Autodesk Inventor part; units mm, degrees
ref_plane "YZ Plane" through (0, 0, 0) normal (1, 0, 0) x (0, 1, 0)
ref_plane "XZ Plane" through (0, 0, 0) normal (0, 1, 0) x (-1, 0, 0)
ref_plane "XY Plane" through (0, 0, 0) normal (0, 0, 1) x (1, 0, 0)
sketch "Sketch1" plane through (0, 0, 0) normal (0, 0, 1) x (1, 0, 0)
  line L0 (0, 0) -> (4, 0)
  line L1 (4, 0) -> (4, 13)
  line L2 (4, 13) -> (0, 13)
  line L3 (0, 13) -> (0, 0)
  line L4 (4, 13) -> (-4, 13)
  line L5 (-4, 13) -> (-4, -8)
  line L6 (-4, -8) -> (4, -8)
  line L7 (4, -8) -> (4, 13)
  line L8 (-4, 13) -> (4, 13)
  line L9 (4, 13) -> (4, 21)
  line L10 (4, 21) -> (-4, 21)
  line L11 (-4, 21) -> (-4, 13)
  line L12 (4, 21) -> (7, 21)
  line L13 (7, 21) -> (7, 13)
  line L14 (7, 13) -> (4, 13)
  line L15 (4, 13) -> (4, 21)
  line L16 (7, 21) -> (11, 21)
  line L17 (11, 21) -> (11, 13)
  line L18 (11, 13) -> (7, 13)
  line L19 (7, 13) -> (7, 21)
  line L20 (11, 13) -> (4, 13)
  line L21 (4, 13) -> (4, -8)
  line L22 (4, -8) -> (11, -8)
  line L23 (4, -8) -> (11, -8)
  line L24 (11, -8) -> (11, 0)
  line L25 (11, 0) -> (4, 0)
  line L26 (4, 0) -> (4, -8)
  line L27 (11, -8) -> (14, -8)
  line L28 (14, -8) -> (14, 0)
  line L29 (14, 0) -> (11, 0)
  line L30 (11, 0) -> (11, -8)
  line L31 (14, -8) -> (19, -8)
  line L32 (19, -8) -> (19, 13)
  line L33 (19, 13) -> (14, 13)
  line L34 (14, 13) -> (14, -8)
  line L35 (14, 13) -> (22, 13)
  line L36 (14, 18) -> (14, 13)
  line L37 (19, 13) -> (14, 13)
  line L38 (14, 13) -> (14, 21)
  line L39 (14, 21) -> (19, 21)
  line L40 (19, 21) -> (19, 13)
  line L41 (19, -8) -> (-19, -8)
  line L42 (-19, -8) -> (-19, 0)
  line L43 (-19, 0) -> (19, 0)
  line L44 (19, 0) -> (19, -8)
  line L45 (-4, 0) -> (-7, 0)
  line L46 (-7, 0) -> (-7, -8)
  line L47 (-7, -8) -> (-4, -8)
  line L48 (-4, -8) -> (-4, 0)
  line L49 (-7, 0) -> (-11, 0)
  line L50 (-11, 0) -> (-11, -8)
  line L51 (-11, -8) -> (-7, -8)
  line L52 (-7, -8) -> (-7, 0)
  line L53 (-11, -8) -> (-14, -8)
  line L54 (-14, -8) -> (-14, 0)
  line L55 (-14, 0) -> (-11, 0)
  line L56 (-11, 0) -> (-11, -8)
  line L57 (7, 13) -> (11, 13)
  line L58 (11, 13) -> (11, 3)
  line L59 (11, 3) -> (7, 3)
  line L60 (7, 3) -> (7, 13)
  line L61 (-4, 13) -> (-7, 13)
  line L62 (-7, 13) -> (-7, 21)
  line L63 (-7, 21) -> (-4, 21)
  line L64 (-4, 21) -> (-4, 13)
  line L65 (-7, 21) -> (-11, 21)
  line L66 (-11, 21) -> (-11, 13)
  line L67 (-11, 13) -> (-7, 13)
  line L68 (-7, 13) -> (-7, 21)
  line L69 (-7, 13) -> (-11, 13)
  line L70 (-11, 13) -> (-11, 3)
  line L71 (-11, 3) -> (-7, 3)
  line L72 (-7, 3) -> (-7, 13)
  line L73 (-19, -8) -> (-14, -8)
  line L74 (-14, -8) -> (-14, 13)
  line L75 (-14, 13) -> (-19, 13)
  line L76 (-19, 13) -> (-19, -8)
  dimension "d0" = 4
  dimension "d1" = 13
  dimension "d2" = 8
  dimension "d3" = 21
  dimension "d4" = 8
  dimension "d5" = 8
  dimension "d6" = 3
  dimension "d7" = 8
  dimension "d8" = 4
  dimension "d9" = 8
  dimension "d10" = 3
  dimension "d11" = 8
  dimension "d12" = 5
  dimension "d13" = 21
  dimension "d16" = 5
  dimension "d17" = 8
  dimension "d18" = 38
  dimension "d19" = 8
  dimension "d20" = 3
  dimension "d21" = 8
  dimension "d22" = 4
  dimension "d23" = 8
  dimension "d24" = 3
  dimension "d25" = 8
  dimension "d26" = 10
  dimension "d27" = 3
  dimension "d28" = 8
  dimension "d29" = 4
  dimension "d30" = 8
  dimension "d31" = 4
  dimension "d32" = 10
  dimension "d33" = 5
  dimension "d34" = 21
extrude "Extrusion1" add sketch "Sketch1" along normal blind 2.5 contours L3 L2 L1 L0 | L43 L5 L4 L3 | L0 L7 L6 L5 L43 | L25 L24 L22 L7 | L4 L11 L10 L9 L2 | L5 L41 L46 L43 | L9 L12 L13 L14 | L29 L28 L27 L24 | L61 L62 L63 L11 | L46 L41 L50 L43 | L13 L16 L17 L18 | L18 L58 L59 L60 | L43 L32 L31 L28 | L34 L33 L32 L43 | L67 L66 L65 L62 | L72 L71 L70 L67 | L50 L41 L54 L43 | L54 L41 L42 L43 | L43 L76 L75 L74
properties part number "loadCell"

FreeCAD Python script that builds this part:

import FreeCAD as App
import Part
import Sketcher


def add_polygon(sketch, points):
    """Adds a closed chain of lines whose ends are joined by coincident constraints."""
    first, n = sketch.GeometryCount, len(points)
    for a, b in zip(points, points[1:] + points[:1]):
        sketch.addGeometry(Part.LineSegment(App.Vector(*a, 0), App.Vector(*b, 0)), False)
    for i in range(n):
        sketch.addConstraint(Sketcher.Constraint("Coincident", first + i, 2, first + (i + 1) % n, 1))

doc = App.newDocument("Part")
body = doc.addObject("PartDesign::Body", "Body")

sketch1 = body.newObject("Sketcher::SketchObject", "Sketch")
sketch1.AttachmentSupport = (doc.getObject("XY_Plane"), [""])
sketch1.MapMode = "FlatFace"
add_polygon(sketch1, [(4, 0), (4, 13), (7, 13), (7, 3), (11, 3), (11, 21), (-11, 21), (-11, 3), (-7, 3), (-7, 13), (-4, 13), (-4, 0), (-14, 0), (-14, 13), (-19, 13), (-19, -8), (19, -8), (19, 13), (14, 13), (14, 0)])
sketch1.addConstraint(Sketcher.Constraint("Vertical", 0))
sketch1.addConstraint(Sketcher.Constraint("Horizontal", 1))
sketch1.addConstraint(Sketcher.Constraint("Vertical", 2))
sketch1.addConstraint(Sketcher.Constraint("Horizontal", 3))
sketch1.addConstraint(Sketcher.Constraint("Vertical", 4))
sketch1.addConstraint(Sketcher.Constraint("Horizontal", 5))
sketch1.addConstraint(Sketcher.Constraint("Vertical", 6))
sketch1.addConstraint(Sketcher.Constraint("Horizontal", 7))
sketch1.addConstraint(Sketcher.Constraint("Vertical", 8))
sketch1.addConstraint(Sketcher.Constraint("Horizontal", 9))
sketch1.addConstraint(Sketcher.Constraint("Vertical", 10))
sketch1.addConstraint(Sketcher.Constraint("Horizontal", 11))
sketch1.addConstraint(Sketcher.Constraint("Vertical", 12))
sketch1.addConstraint(Sketcher.Constraint("Horizontal", 13))
sketch1.addConstraint(Sketcher.Constraint("Vertical", 14))
sketch1.addConstraint(Sketcher.Constraint("Horizontal", 15))
sketch1.addConstraint(Sketcher.Constraint("Vertical", 16))
sketch1.addConstraint(Sketcher.Constraint("Horizontal", 17))
sketch1.addConstraint(Sketcher.Constraint("Vertical", 18))
sketch1.addConstraint(Sketcher.Constraint("Horizontal", 19))
sketch1.addConstraint(Sketcher.Constraint("Symmetric", 11, 2, 18, 2, -1, 1))
sketch1.addConstraint(Sketcher.Constraint("Symmetric", 3, 2, 6, 2, -2))
sketch1.addConstraint(Sketcher.Constraint("Symmetric", 1, 2, 8, 2, -2))
sketch1.addConstraint(Sketcher.Constraint("Symmetric", 13, 2, 16, 2, -2))
sketch1.addConstraint(Sketcher.Constraint("Symmetric", 10, 2, 19, 2, -2))
sketch1.addConstraint(Sketcher.Constraint("Horizontal", 9, 2, 12, 2))
sketch1.addConstraint(Sketcher.Constraint("Equal", 19, 2))
sketch1.addConstraint(Sketcher.Constraint("DistanceX", 1, 1, 1, 2, 3.0))
sketch1.addConstraint(Sketcher.Constraint("DistanceX", 3, 1, 3, 2, 4.0))
sketch1.addConstraint(Sketcher.Constraint("DistanceX", 11, 2, 11, 1, 10.0))
sketch1.addConstraint(Sketcher.Constraint("DistanceX", 13, 2, 13, 1, 5.0))
sketch1.addConstraint(Sketcher.Constraint("DistanceX", 15, 1, 15, 2, 38.0))
sketch1.addConstraint(Sketcher.Constraint("DistanceY", 0, 1, 0, 2, 13.0))
sketch1.addConstraint(Sketcher.Constraint("DistanceY", 14, 2, 14, 1, 21.0))
sketch1.addConstraint(Sketcher.Constraint("DistanceY", -1, 1, 4, 2, 21.0))
pad1 = body.newObject("PartDesign::Pad", "Pad")
pad1.Profile = sketch1
pad1.Length = 2.5

doc.recompute()
